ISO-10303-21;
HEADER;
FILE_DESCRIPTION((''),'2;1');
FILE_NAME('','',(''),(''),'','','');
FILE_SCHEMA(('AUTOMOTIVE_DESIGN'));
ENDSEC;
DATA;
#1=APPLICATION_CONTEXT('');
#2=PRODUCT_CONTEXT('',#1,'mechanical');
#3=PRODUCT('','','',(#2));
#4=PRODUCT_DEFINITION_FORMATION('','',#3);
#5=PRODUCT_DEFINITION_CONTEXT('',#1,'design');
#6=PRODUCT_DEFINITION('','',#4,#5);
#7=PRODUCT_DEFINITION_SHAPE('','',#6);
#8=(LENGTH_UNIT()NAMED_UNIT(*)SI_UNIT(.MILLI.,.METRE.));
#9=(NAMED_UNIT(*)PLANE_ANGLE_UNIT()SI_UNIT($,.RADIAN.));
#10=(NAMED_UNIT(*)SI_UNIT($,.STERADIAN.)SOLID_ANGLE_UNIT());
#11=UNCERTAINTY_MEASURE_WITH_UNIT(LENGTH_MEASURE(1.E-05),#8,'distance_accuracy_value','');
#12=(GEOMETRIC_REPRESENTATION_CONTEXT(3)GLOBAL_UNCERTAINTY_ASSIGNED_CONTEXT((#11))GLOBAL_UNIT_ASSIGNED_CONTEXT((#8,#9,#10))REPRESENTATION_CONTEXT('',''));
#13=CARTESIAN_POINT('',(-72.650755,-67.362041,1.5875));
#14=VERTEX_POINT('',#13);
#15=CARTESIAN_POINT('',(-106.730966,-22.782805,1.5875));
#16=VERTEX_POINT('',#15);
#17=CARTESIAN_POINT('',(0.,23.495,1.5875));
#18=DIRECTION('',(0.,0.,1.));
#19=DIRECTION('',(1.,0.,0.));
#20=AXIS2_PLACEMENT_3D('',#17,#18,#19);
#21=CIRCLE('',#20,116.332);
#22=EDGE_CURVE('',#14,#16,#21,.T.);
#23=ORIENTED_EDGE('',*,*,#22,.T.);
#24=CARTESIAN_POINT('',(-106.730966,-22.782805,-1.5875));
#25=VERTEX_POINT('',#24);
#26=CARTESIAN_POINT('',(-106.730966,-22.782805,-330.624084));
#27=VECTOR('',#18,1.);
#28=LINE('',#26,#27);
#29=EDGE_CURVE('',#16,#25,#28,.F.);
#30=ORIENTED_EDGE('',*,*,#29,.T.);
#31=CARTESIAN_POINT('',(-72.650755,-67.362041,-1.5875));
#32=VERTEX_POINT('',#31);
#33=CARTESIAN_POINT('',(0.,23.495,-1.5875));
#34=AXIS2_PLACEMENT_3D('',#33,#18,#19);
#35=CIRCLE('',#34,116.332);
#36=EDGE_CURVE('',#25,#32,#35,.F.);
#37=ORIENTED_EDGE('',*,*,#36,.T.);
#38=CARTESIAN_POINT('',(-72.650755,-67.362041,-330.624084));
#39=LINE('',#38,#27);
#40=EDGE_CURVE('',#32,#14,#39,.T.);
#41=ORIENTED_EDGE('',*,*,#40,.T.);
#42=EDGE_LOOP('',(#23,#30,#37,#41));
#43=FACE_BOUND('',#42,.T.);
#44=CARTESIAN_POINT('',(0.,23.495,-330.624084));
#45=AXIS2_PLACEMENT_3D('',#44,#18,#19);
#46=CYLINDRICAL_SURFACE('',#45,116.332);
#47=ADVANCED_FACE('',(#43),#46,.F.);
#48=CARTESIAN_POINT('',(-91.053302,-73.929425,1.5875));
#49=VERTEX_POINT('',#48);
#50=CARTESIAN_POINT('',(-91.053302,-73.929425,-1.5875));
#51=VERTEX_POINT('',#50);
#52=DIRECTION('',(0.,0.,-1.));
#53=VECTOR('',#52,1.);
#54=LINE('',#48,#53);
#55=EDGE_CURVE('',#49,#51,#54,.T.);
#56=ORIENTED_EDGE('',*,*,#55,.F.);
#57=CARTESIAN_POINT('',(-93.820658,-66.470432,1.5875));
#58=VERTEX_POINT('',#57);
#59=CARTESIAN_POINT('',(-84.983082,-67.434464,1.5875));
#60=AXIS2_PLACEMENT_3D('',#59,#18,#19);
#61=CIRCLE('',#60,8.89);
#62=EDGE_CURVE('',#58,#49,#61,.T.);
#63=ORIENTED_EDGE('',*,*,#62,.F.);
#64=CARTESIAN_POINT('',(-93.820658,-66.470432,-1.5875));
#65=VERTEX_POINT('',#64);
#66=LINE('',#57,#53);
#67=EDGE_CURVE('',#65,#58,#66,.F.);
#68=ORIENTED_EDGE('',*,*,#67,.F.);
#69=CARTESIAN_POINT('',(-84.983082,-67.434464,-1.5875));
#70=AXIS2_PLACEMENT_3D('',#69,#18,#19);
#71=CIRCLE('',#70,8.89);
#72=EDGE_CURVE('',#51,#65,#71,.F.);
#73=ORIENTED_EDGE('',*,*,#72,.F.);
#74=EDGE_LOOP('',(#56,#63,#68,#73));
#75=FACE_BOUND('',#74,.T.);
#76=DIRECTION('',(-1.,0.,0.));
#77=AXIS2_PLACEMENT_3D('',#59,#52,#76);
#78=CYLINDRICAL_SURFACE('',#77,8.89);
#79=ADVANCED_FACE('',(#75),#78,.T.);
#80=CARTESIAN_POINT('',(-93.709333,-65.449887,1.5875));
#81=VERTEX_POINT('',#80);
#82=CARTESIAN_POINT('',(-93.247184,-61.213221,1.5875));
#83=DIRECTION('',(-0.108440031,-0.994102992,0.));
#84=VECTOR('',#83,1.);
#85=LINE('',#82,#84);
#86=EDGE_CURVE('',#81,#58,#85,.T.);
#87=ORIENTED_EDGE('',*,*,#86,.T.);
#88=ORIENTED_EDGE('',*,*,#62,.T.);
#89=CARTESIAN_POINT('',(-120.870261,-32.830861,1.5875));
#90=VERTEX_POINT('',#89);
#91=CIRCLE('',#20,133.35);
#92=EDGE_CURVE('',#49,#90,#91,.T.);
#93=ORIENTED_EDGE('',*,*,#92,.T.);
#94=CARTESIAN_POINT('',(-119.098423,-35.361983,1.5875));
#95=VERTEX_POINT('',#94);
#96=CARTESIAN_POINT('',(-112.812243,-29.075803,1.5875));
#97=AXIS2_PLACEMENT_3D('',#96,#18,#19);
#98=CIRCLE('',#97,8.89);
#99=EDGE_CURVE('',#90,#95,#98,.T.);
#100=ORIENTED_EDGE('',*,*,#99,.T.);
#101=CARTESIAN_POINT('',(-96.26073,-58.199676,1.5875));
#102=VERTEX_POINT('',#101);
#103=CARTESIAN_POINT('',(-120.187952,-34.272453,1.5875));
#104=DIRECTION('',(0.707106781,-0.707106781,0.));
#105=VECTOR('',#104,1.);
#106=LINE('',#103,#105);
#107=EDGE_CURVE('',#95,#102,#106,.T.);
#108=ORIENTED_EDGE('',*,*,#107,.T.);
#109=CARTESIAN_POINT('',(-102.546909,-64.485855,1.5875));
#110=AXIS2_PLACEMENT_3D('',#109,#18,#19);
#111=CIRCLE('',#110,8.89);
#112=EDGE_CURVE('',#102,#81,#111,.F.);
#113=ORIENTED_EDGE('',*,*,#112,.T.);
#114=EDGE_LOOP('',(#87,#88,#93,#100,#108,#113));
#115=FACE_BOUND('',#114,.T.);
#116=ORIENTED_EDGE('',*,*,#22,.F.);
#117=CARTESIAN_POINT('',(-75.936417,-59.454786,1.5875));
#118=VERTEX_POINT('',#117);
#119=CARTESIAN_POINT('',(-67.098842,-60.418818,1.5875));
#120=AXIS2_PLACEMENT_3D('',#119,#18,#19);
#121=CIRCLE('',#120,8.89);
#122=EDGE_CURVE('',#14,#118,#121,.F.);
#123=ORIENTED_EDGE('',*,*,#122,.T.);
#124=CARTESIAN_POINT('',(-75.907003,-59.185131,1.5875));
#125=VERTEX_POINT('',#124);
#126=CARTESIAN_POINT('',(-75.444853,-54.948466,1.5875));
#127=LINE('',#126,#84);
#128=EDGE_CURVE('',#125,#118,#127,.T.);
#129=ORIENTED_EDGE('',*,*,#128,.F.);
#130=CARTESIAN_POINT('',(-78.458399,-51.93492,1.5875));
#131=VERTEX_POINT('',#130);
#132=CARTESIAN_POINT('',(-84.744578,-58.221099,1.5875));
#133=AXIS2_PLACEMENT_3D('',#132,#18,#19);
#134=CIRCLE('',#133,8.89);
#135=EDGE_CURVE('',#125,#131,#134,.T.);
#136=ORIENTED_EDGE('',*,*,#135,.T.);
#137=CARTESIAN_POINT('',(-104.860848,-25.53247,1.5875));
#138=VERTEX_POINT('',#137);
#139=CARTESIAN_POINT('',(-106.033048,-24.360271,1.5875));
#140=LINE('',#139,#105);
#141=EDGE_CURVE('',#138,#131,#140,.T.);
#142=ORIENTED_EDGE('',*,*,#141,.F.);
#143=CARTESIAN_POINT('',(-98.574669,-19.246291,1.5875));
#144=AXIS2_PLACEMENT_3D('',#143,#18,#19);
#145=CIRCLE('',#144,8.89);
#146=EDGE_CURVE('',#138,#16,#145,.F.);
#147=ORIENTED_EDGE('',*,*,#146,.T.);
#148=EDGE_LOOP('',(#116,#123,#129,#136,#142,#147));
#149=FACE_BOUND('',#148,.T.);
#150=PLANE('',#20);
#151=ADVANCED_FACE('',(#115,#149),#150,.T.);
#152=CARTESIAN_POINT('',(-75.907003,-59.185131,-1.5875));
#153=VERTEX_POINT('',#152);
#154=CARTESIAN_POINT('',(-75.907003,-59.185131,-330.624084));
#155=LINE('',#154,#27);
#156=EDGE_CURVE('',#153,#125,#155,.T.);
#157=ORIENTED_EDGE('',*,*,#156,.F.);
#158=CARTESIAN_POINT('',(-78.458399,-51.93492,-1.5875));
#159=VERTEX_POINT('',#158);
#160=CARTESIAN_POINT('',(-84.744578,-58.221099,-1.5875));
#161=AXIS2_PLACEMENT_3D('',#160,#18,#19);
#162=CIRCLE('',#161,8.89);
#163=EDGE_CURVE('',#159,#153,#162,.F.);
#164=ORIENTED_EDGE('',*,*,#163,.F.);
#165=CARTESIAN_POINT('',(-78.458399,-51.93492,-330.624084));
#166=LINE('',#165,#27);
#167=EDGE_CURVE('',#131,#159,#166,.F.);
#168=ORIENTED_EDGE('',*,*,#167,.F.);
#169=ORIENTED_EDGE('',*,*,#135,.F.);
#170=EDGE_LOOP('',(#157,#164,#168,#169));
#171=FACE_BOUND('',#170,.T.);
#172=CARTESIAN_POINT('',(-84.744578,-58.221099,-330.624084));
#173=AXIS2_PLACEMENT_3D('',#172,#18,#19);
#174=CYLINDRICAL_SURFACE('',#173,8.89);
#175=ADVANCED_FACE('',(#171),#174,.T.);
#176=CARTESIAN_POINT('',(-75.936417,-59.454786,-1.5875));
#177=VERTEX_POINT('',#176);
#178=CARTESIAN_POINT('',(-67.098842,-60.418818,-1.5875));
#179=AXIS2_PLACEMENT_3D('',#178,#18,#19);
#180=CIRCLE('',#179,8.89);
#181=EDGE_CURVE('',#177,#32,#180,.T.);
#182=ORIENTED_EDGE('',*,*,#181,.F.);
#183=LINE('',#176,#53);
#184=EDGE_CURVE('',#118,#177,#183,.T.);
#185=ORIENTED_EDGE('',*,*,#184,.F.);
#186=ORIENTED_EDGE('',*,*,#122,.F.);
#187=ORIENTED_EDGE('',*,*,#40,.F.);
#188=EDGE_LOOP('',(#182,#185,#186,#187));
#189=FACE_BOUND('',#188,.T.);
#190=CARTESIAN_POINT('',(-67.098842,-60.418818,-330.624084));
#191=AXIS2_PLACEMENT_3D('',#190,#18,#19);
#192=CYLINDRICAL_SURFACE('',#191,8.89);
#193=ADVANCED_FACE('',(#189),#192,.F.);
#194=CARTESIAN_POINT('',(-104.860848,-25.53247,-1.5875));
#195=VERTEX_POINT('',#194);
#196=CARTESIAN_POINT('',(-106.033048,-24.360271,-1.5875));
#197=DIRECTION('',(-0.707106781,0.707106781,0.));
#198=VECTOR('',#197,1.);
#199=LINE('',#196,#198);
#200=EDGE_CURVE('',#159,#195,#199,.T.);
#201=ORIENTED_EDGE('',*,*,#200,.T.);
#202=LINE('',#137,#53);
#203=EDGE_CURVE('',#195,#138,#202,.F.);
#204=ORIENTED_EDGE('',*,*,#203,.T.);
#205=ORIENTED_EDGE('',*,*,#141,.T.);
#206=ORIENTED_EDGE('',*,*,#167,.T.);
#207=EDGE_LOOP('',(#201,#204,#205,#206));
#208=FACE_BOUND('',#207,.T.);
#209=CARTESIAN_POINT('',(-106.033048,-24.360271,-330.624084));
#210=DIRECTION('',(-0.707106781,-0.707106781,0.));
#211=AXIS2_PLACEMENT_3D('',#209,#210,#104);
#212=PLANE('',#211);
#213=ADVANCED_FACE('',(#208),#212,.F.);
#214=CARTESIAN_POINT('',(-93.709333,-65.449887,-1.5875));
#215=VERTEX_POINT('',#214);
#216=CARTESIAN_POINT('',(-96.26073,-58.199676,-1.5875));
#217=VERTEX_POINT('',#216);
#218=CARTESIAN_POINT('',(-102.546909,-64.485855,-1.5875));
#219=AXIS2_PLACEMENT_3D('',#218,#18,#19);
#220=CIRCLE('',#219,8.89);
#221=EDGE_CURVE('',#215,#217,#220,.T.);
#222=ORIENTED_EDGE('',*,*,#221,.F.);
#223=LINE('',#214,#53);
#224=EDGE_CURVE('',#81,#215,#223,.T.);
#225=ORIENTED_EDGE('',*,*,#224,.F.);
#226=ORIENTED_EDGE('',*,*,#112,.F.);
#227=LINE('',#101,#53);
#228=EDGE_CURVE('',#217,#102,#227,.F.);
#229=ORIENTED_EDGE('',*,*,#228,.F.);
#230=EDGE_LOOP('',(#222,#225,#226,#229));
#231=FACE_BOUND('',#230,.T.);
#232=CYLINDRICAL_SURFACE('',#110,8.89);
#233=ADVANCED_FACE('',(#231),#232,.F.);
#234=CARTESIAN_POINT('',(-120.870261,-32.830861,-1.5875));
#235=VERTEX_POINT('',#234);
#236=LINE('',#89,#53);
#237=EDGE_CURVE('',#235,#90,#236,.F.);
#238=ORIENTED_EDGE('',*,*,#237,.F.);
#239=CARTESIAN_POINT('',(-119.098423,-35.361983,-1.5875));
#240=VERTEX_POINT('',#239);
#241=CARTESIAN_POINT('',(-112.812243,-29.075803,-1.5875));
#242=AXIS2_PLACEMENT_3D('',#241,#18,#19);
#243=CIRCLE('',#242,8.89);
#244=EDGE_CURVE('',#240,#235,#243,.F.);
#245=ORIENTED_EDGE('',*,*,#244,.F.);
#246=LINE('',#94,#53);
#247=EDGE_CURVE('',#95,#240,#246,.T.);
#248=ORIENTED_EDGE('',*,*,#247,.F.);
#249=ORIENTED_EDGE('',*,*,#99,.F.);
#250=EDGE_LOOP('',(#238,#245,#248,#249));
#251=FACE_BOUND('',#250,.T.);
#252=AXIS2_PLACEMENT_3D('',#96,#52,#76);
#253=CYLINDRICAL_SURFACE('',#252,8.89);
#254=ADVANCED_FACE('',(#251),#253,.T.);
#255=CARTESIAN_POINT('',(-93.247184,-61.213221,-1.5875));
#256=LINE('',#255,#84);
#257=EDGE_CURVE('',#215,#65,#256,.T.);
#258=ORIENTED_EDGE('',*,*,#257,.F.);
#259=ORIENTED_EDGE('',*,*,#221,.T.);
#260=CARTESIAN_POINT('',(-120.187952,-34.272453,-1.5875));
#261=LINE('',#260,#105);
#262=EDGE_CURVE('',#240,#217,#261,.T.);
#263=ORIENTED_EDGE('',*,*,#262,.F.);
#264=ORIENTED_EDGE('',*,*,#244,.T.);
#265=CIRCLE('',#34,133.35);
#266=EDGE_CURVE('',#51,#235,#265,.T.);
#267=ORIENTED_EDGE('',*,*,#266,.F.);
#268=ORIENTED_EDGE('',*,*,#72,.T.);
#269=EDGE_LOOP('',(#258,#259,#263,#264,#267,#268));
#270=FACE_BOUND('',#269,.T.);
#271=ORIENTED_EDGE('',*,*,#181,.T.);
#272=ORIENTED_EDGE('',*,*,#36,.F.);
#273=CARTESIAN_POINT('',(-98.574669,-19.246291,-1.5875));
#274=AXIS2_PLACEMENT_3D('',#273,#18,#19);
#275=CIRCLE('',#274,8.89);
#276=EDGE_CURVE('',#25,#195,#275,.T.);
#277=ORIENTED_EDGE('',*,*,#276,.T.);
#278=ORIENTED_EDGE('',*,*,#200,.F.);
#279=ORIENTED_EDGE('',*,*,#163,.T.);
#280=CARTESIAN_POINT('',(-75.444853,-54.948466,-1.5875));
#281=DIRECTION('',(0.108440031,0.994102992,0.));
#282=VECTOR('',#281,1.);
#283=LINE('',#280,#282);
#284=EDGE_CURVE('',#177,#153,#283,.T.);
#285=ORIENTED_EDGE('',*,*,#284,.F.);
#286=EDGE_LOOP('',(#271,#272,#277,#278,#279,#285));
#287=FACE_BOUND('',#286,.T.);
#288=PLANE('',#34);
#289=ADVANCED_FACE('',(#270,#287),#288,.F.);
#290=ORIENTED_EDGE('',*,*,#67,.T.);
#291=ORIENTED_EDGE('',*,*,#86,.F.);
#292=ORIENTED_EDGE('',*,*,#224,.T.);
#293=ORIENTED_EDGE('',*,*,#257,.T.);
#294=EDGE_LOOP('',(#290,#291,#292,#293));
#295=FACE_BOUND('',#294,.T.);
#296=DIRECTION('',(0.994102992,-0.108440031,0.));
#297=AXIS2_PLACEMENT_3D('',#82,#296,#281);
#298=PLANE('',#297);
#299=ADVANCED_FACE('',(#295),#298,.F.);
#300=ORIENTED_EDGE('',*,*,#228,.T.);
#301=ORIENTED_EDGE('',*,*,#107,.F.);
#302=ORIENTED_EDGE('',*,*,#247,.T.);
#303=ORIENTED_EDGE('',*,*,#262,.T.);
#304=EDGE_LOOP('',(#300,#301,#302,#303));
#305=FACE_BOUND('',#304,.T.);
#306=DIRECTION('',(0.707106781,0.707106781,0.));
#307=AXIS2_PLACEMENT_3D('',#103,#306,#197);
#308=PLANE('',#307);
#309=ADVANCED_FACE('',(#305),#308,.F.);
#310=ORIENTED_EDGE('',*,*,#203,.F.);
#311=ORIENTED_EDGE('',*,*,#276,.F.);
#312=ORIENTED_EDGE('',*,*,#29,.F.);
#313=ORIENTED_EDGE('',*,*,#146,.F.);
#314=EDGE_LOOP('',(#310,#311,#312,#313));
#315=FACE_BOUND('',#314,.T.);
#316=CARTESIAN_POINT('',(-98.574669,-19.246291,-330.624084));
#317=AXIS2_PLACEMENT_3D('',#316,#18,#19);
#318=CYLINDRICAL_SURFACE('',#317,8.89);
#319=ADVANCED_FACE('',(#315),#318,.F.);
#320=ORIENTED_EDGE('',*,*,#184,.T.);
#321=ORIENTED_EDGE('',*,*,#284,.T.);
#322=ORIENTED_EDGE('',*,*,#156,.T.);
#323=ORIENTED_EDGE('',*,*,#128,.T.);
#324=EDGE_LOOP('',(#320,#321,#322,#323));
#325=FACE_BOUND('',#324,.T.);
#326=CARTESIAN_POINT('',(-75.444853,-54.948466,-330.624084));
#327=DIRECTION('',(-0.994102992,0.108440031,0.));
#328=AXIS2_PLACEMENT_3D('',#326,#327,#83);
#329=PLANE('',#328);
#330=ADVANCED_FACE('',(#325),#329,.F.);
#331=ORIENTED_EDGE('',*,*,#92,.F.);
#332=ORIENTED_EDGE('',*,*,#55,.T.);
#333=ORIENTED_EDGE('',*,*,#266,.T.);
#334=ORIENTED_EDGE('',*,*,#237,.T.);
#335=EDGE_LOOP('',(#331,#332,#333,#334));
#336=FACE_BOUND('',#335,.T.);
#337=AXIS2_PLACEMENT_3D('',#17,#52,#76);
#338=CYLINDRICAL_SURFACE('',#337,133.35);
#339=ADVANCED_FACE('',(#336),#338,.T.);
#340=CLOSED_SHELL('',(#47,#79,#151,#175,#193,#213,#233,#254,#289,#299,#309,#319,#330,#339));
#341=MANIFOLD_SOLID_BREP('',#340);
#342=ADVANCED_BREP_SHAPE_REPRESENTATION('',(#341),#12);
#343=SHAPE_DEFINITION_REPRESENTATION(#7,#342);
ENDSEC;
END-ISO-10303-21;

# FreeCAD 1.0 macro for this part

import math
import FreeCAD as App
import Part
import Sketcher
Q = App.Units.Quantity


def edges_at(feature, points):
    """Names of the edges that pass closest to the given points."""
    edges = feature.Shape.Edges
    near = lambda p: min(range(len(edges)), key=lambda i: edges[i].distToShape(Part.Vertex(*p))[0])
    return sorted({f"Edge{near(p) + 1}" for p in points})

doc = App.newDocument("Part")
body = doc.addObject("PartDesign::Body", "Body")

sketch1 = body.newObject("Sketcher::SketchObject", "Sketch")
sketch1.AttachmentSupport = (doc.getObject("XY_Plane"), [""])
sketch1.MapMode = "FlatFace"
sketch1.addGeometry([
    Part.LineSegment(App.Vector(-120, -34, 0), App.Vector(-93, -61, 0)),
    Part.LineSegment(App.Vector(-93, -61, 0), App.Vector(-94, -71, 0)),
    Part.ArcOfCircle(Part.Circle(App.Vector(0, 23, 0), App.Vector(0, 0, 1), 133), math.radians(-135), math.radians(-115.67)),
    Part.ArcOfCircle(Part.Circle(App.Vector(0, 23, 0), App.Vector(0, 0, 1), 133), math.radians(-116), math.radians(206)),
], False)
sketch1.addConstraint([
    Sketcher.Constraint("Coincident", 0, 2, 1, 1),
    Sketcher.Constraint("Coincident", 1, 2, 2, 1),
    Sketcher.Constraint("Tangent", 2, 2, 3, 1),
    Sketcher.Constraint("Coincident", 3, 2, 0, 1),
    Sketcher.Constraint("Equal", 2, 3),
    Sketcher.Constraint("PointOnObject", 2, 3, -2),
    Sketcher.Constraint("Radius", 2, Q("5.25 in")),
    Sketcher.Constraint("Angle", 0, Q("-45 deg")),
    Sketcher.Constraint("Distance", 0, Q("1.5 in")),
    Sketcher.Constraint("DistanceY", -1, 1, 2, 3, Q("0.925 in")),
    Sketcher.Constraint("DistanceX", 3, 2, 2, 2, Q("2.4575 in")),
    Sketcher.Constraint("DistanceY", 2, 2, 3, 2, Q("2.4575 in")),
    Sketcher.Constraint("DistanceX", 1, 2, -1, 1, 94.292689),
])
pad1 = body.newObject("PartDesign::Pad", "Pad")
pad1.Profile = sketch1
pad1.Length = Q("0.125 in")
pad1.Midplane = True

sketch2 = body.newObject("Sketcher::SketchObject", "Sketch001")
sketch2.AttachmentSupport = (doc.getObject("XY_Plane"), [""])
sketch2.MapMode = "FlatFace"
sketch2.AttachmentOffset = App.Placement(App.Vector(0, 0, 0.0625 * 25.4), App.Rotation())
sketch2.addGeometry([
    Part.LineSegment(App.Vector(-75, -55, 0), App.Vector(-76, -64, 0)),
    Part.ArcOfCircle(Part.Circle(App.Vector(0, 23, 0), App.Vector(0, 0, 1), 116), math.radians(-131), math.radians(204)),
    Part.LineSegment(App.Vector(-106, -24, 0), App.Vector(-75, -55, 0)),
], False)
sketch2.addConstraint([
    Sketcher.Constraint("Coincident", 0, 2, 1, 1),
    Sketcher.Constraint("Coincident", 1, 2, 2, 1),
    Sketcher.Constraint("Coincident", 2, 2, 0, 1),
    Sketcher.Constraint("PointOnObject", 1, 3, -2),
    Sketcher.Constraint("Radius", 1, Q("4.58 in")),
    Sketcher.Constraint("Angle", 2, Q("-45 deg")),
    Sketcher.Constraint("DistanceY", -1, 1, 1, 3, Q("0.925 in")),
    Sketcher.Constraint("Distance", 2, 43.25824),
    Sketcher.Constraint("DistanceX", 0, 2, -1, 1, 76.452622),
    Sketcher.Constraint("DistanceX", 1, 2, -1, 1, 106.033048),
])
pocket1 = body.newObject("PartDesign::Pocket", "Pocket")
pocket1.Profile = sketch2
pocket1.Length = Q("0.125 in")
doc.recompute()

fillet = body.newObject("PartDesign::Fillet", "Fillet")
fillet.Base = (pocket1, edges_at(pocket1, [
    (-75.445, -54.948, 0),
    (-106.033, -24.36, 0),
    (-76.453, -64.187, 0),
    (-93.247, -61.213, 0),
    (-120.188, -34.272, 0),
    (-94.293, -70.798, 0),
]))
fillet.Radius = Q("0.35 in")

doc.recompute()
